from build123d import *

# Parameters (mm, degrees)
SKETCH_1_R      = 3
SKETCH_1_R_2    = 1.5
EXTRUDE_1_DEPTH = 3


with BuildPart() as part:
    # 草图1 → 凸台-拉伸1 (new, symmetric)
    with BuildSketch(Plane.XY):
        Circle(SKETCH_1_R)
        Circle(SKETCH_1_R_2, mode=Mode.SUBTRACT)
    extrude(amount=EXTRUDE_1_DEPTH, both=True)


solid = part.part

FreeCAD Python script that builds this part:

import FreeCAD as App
import Part
import Sketcher

doc = App.newDocument("Part")
body = doc.addObject("PartDesign::Body", "Body")

# Sketch on XY plane
sketch1 = doc.addObject("Sketcher::SketchObject", "Sketch")
body.addObject(sketch1)
sketch1.AttachmentSupport = (doc.XY_Plane, [""])
sketch1.MapMode = "FlatFace"
sketch1.addGeometry(Part.Circle(App.Vector(0, 0, 0), App.Vector(0, 0, 1), 3), False)
sketch1.addGeometry(Part.Circle(App.Vector(0, 0, 0), App.Vector(0, 0, 1), 1.5), False)
sketch1.addConstraint(Sketcher.Constraint("Coincident", 0, 3, -1, 1))
sketch1.addConstraint(Sketcher.Constraint("Coincident", 1, 3, -1, 1))
sketch1.addConstraint(Sketcher.Constraint("Diameter", 0, 6.0))
sketch1.addConstraint(Sketcher.Constraint("Diameter", 1, 3.0))
pad1 = doc.addObject("PartDesign::Pad", "Pad")
body.addObject(pad1)
pad1.Profile = sketch1
pad1.Length = 6
pad1.Midplane = True

doc.recompute()
